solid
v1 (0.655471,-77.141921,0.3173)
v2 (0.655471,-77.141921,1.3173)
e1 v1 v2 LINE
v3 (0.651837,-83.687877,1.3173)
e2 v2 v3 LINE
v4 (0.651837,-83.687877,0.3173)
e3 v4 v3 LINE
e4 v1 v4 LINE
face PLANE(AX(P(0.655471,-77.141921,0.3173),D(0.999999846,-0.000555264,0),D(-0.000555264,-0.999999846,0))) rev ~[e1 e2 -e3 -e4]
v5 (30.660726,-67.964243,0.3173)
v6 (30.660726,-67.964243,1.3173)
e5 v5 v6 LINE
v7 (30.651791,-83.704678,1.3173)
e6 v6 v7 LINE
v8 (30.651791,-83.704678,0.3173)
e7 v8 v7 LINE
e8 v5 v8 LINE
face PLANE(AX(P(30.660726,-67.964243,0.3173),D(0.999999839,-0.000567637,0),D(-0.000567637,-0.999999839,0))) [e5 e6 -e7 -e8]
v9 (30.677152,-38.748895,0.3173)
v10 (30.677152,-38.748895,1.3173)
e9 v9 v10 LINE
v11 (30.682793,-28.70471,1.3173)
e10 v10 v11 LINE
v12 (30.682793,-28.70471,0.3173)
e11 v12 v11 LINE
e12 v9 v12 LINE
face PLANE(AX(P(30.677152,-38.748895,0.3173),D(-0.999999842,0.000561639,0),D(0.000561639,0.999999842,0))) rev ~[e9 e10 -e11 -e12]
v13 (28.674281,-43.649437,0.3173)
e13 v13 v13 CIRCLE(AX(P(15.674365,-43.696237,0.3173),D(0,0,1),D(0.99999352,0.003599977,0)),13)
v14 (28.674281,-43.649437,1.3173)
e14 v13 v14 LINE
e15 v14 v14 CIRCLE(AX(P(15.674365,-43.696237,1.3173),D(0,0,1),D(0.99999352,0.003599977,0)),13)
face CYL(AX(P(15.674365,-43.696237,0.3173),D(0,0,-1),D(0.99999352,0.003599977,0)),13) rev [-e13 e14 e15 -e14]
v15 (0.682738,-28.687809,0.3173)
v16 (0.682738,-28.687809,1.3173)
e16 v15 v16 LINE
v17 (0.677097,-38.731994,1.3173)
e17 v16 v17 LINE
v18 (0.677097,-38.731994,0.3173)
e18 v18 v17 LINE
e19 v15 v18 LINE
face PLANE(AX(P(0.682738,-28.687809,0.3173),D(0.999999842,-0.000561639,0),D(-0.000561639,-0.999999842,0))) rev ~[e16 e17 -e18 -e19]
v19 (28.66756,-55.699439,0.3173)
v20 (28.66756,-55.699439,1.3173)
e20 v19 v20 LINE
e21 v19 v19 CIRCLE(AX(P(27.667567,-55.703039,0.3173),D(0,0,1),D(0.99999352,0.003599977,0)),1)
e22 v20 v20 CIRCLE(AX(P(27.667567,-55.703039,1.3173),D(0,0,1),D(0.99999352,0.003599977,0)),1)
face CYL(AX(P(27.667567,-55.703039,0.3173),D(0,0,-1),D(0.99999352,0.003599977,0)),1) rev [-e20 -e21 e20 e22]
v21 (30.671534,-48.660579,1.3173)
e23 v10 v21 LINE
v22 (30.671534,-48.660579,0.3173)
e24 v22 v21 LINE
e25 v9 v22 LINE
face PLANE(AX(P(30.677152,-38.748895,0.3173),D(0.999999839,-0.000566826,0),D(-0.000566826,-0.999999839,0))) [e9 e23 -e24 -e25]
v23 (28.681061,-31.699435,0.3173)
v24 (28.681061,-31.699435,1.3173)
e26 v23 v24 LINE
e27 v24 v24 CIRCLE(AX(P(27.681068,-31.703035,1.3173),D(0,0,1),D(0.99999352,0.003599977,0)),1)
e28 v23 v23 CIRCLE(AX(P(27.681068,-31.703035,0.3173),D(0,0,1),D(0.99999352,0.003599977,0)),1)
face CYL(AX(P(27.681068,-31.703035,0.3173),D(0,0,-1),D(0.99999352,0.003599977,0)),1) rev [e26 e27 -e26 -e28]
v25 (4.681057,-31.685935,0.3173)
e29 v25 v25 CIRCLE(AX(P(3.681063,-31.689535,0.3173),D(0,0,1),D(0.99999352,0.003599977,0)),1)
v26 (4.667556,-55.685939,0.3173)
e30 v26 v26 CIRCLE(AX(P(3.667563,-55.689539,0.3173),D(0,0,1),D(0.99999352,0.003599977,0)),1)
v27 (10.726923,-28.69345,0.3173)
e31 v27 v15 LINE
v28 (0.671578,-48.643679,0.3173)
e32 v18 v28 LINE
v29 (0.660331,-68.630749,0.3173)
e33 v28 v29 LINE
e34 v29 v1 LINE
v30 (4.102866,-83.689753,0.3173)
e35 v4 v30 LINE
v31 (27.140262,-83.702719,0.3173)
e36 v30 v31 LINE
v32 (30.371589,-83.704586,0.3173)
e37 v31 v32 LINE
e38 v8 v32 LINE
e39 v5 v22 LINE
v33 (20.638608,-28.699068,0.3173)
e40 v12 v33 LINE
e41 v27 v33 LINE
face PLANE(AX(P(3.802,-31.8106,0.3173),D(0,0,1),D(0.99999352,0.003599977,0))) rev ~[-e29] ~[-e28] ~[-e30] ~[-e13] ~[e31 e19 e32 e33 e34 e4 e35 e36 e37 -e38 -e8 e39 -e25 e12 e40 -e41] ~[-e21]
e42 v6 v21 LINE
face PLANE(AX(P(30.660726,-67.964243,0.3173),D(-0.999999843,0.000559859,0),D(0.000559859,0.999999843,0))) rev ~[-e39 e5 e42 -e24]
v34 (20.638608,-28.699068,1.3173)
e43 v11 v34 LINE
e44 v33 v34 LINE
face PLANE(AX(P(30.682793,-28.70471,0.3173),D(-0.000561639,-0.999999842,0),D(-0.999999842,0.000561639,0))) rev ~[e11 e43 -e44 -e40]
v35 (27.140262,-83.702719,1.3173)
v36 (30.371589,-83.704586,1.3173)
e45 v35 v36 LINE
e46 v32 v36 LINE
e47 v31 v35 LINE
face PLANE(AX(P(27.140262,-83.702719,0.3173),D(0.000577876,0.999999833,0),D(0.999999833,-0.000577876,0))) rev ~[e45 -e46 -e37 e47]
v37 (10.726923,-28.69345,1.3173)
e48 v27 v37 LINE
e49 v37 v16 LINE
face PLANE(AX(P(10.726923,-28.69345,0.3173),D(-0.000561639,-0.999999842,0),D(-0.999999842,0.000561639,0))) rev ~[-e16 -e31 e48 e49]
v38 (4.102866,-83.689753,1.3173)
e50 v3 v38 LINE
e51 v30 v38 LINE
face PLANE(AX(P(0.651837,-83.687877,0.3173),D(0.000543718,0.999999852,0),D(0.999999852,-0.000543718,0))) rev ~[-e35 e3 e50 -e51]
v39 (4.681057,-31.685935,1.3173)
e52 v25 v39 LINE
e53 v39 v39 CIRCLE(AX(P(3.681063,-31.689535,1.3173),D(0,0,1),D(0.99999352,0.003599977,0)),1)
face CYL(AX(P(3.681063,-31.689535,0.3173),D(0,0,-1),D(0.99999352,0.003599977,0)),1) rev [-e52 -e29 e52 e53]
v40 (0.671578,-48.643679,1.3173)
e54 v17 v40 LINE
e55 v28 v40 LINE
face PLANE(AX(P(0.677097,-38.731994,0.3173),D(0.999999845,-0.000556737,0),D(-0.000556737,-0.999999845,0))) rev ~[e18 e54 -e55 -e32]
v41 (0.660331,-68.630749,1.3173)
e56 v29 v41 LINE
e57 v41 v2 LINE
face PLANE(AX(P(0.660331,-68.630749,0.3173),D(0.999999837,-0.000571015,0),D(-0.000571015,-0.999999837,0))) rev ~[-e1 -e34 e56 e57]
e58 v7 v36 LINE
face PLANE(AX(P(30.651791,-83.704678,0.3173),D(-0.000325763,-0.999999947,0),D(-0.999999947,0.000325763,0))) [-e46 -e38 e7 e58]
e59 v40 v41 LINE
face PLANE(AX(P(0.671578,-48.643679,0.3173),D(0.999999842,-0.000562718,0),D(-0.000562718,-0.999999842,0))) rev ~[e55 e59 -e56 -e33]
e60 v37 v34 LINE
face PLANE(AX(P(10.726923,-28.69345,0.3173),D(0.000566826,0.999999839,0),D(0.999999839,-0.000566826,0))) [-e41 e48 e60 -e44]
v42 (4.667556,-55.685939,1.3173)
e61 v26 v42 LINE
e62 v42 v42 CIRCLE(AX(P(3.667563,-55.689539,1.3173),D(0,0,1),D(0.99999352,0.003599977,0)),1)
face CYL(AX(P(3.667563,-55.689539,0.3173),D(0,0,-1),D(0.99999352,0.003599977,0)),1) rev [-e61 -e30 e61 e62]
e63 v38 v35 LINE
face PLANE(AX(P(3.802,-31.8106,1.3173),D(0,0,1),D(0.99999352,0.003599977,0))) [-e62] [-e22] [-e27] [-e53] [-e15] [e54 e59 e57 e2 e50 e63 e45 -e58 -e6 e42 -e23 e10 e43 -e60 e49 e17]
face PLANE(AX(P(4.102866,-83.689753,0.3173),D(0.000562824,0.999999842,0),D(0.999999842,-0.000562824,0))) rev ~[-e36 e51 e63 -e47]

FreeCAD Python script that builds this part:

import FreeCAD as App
import Part
import Sketcher

V = App.Vector
Q = App.Units.Quantity


def add_polygon(sketch, points):
    """Adds a closed chain of lines whose ends are joined by coincident constraints."""
    first, n = sketch.GeometryCount, len(points)
    for a, b in zip(points, points[1:] + points[:1]):
        sketch.addGeometry(Part.LineSegment(App.Vector(*a, 0), App.Vector(*b, 0)), False)
    for i in range(n):
        sketch.addConstraint(Sketcher.Constraint("Coincident", first + i, 2, first + (i + 1) % n, 1))

doc = App.newDocument("Part")
body = doc.addObject("PartDesign::Body", "Body")

sketch1 = body.newObject("Sketcher::SketchObject", "Sketch")
sketch1.AttachmentSupport = (doc.getObject("XY_Plane"), [""])
sketch1.MapMode = "FlatFace"
sketch1.AttachmentOffset = App.Placement(V(0, 0, 0.3173), App.Rotation())
add_polygon(sketch1, [(30.68, -28.7), (20.64, -28.7), (10.73, -28.69), (0.68, -28.69), (0.68, -38.73), (0.67, -48.64), (0.66, -68.63), (0.66, -77.14), (0.65, -83.69), (4.1, -83.69), (27.14, -83.7), (30.37, -83.7), (30.65, -83.7), (30.66, -67.96), (30.67, -48.66), (30.68, -38.75)])
sketch1.addGeometry(Part.Circle(V(27.68, -31.7, 0), V(0, 0, 1), 1), False)
sketch1.addGeometry(Part.Circle(V(15.67, -43.7, 0), V(0, 0, 1), 13), False)
sketch1.addGeometry(Part.Circle(V(27.67, -55.7, 0), V(0, 0, 1), 1), False)
sketch1.addGeometry(Part.Circle(V(3.67, -55.69, 0), V(0, 0, 1), 1), False)
sketch1.addGeometry(Part.Circle(V(3.68, -31.69, 0), V(0, 0, 1), 1), False)
sketch1.addConstraint(Sketcher.Constraint("Horizontal", 11))
sketch1.addConstraint(Sketcher.Constraint("Equal", 16, 18))
sketch1.addConstraint(Sketcher.Constraint("Equal", 18, 19))
sketch1.addConstraint(Sketcher.Constraint("Equal", 19, 20))
sketch1.addConstraint(Sketcher.Constraint("Parallel", 0, 1))
sketch1.addConstraint(Sketcher.Constraint("Parallel", 1, 2))
sketch1.addConstraint(Sketcher.Constraint("Perpendicular", 2, 3))
sketch1.addConstraint(Sketcher.Constraint("Parallel", 3, 4))
sketch1.addConstraint(Sketcher.Constraint("Parallel", 4, 5))
sketch1.addConstraint(Sketcher.Constraint("Parallel", 5, 6))
sketch1.addConstraint(Sketcher.Constraint("Parallel", 6, 7))
sketch1.addConstraint(Sketcher.Constraint("Perpendicular", 7, 8))
sketch1.addConstraint(Sketcher.Constraint("Parallel", 8, 9))
sketch1.addConstraint(Sketcher.Constraint("Parallel", 9, 10))
sketch1.addConstraint(Sketcher.Constraint("Perpendicular", 10, 12))
sketch1.addConstraint(Sketcher.Constraint("Parallel", 12, 13))
sketch1.addConstraint(Sketcher.Constraint("Parallel", 13, 14))
sketch1.addConstraint(Sketcher.Constraint("Parallel", 14, 15))
sketch1.addConstraint(Sketcher.Constraint("Equal", 0, 2))
sketch1.addConstraint(Sketcher.Constraint("Equal", 2, 3))
sketch1.addConstraint(Sketcher.Constraint("Equal", 1, 4))
sketch1.addConstraint(Sketcher.Constraint("Equal", 4, 14))
sketch1.addConstraint(Sketcher.Constraint("Equal", 3, 15))
sketch1.addConstraint(Sketcher.Constraint("Diameter", 16, Q("2 mm")))
sketch1.addConstraint(Sketcher.Constraint("Diameter", 17, Q("26 mm")))
sketch1.addConstraint(Sketcher.Constraint("DistanceY", 18, 3, 16, 3, Q("24 mm")))
sketch1.addConstraint(Sketcher.Constraint("DistanceX", 19, 3, 18, 3, Q("24 mm")))
sketch1.addConstraint(Sketcher.Constraint("DistanceX", 20, 3, 16, 3, Q("24 mm")))
sketch1.addConstraint(Sketcher.Constraint("DistanceY", 19, 3, 20, 3, Q("24 mm")))
sketch1.addConstraint(Sketcher.Constraint("DistanceX", 7, 2, 11, 2, Q("30 mm")))
sketch1.addConstraint(Sketcher.Constraint("Angle", 8, Q("-0.0312 deg")))
sketch1.addConstraint(Sketcher.Constraint("DistanceX", 5, 2, 9, 2, Q("26.48 mm")))
sketch1.addConstraint(Sketcher.Constraint("Distance", 5, Q("19.987 mm")))
sketch1.addConstraint(Sketcher.Constraint("Distance", 7, Q("6.546 mm")))
sketch1.addConstraint(Sketcher.Constraint("Distance", 8, Q("3.451 mm")))
sketch1.addConstraint(Sketcher.Constraint("DistanceX", 11, 1, 11, 2, Q("0.2802 mm")))
sketch1.addConstraint(Sketcher.Constraint("DistanceX", -1, 1, 16, 3, Q("27.681 mm")))
sketch1.addConstraint(Sketcher.Constraint("DistanceY", 16, 3, -1, 1, Q("31.703 mm")))
sketch1.addConstraint(Sketcher.Constraint("DistanceY", 0, 2, -1, 1, Q("28.699 mm")))
sketch1.addConstraint(Sketcher.Constraint("DistanceX", -1, 1, 1, 2, Q("10.727 mm")))
sketch1.addConstraint(Sketcher.Constraint("DistanceX", -1, 1, 3, 2, Q("0.677 mm")))
sketch1.addConstraint(Sketcher.Constraint("DistanceY", 6, 2, -1, 1, Q("77.142 mm")))
sketch1.addConstraint(Sketcher.Constraint("DistanceX", 0, 2, 18, 3, Q("7.029 mm")))
sketch1.addConstraint(Sketcher.Constraint("DistanceY", 20, 3, 1, 2, Q("2.996 mm")))
sketch1.addConstraint(Sketcher.Constraint("DistanceX", 5, 2, 17, 3, Q("15.014 mm")))
sketch1.addConstraint(Sketcher.Constraint("DistanceY", 12, 2, 17, 3, Q("24.268 mm")))
sketch1.addConstraint(Sketcher.Constraint("Distance", 12, Q("15.7404 mm")))
pad1 = body.newObject("PartDesign::Pad", "Pad")
pad1.Profile = sketch1
pad1.Length = 1

doc.recompute()
